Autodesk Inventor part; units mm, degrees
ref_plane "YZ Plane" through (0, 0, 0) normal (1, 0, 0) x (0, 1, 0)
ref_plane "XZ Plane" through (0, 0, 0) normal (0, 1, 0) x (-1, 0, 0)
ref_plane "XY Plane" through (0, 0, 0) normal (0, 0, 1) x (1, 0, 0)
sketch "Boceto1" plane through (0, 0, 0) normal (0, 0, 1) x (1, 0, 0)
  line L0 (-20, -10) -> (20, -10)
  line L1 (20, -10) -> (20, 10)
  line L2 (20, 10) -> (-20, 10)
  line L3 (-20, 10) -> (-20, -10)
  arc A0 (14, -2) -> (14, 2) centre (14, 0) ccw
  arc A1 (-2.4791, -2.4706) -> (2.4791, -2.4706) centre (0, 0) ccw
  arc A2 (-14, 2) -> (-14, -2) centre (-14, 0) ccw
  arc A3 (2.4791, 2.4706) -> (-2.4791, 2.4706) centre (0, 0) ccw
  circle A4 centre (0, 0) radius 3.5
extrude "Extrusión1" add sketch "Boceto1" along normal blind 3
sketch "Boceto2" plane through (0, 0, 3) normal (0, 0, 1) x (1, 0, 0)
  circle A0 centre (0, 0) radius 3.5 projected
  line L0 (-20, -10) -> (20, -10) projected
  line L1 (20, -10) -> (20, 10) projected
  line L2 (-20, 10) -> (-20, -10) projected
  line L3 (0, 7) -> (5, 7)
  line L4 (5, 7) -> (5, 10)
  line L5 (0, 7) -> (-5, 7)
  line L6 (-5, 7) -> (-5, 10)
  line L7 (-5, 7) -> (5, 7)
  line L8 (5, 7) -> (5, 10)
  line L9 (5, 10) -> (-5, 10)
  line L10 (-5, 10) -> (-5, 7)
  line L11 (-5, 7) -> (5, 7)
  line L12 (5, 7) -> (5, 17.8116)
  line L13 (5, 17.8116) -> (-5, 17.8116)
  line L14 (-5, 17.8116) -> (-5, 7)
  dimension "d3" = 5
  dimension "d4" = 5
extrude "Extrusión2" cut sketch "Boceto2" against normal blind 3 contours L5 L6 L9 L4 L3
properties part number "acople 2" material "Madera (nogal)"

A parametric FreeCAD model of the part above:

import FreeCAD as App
import Part
import Sketcher
from FreeCAD import Vector


def add_polygon(sketch, points):
    """Adds a closed chain of lines whose ends are joined by coincident constraints."""
    first, n = sketch.GeometryCount, len(points)
    for a, b in zip(points, points[1:] + points[:1]):
        sketch.addGeometry(Part.LineSegment(App.Vector(*a, 0), App.Vector(*b, 0)), False)
    for i in range(n):
        sketch.addConstraint(Sketcher.Constraint("Coincident", first + i, 2, first + (i + 1) % n, 1))

doc = App.newDocument("Part")
params = doc.addObject("Spreadsheet::Sheet", "Params")
for row, (alias, value) in enumerate([
    ("sketch1_diameter", "7 mm"),
    ("sketch1_width", "40 mm"),
    ("sketch1_height", "20 mm"),
    ("pad1_length", "3 mm"),
    ("sketch2_height", "3 mm"),
    ("pocket1_length", "3 mm"),
], start=1):
    params.set(f"A{row}", alias)
    params.set(f"B{row}", "=" + value)
    params.setAlias(f"B{row}", alias)

body = doc.addObject("PartDesign::Body", "Body")

# Sketch on XY plane
sketch1 = body.newObject("Sketcher::SketchObject", "Sketch")
sketch1.AttachmentSupport = (doc.getObject("XY_Plane"), [""])
sketch1.MapMode = "FlatFace"
add_polygon(sketch1, [(-20, 10), (-20, -10), (20, -10), (20, 10)])  # lines 0-3
sketch1.addGeometry(Part.Circle(Vector(0, 0, 0), Vector(0, 0, 1), 3.5), False)  # 4
sketch1.addConstraint([
    Sketcher.Constraint("Vertical", 0),
    Sketcher.Constraint("Horizontal", 1),
    Sketcher.Constraint("Vertical", 2),
    Sketcher.Constraint("Horizontal", 3),
    Sketcher.Constraint("Coincident", 4, 3, -1, 1),
    Sketcher.Constraint("Symmetric", 0, 2, 2, 2, -1, 1),
    Sketcher.Constraint("Diameter", 4, 7.0),
    Sketcher.Constraint("DistanceX", 1, 1, 1, 2, 40.0),
    Sketcher.Constraint("DistanceY", 0, 2, 0, 1, 20.0),
])
sketch1.setExpression("Constraints[10]", "Params.sketch1_diameter")
sketch1.setExpression("Constraints[11]", "Params.sketch1_width")
sketch1.setExpression("Constraints[12]", "Params.sketch1_height")
pad1 = body.newObject("PartDesign::Pad", "Pad")
pad1.Profile = sketch1
pad1.setExpression("Length", "Params.pad1_length")

# Sketch on XY plane
sketch2 = body.newObject("Sketcher::SketchObject", "Sketch001")
sketch2.AttachmentSupport = (doc.getObject("XY_Plane"), [""])
sketch2.MapMode = "FlatFace"
sketch2.AttachmentOffset = App.Placement(Vector(0, 0, 3), App.Rotation())
add_polygon(sketch2, [(-5, 7), (5, 7), (5, 10), (-5, 10)])  # lines 0-3
sketch2.addConstraint([
    Sketcher.Constraint("Horizontal", 0),
    Sketcher.Constraint("Vertical", 1),
    Sketcher.Constraint("Horizontal", 2),
    Sketcher.Constraint("Vertical", 3),
    Sketcher.Constraint("DistanceX", -1, 1, 0, 2, 5.0),
    Sketcher.Constraint("DistanceX", 2, 2, -1, 1, 5.0),
    Sketcher.Constraint("DistanceY", 1, 1, 1, 2, 3.0),
    Sketcher.Constraint("DistanceY", -1, 1, 0, 2, 7.0),
])
sketch2.setExpression("Constraints[10]", "Params.sketch2_height")
pocket1 = body.newObject("PartDesign::Pocket", "Pocket")
pocket1.Profile = sketch2
pocket1.setExpression("Length", "Params.pocket1_length")

doc.recompute()
